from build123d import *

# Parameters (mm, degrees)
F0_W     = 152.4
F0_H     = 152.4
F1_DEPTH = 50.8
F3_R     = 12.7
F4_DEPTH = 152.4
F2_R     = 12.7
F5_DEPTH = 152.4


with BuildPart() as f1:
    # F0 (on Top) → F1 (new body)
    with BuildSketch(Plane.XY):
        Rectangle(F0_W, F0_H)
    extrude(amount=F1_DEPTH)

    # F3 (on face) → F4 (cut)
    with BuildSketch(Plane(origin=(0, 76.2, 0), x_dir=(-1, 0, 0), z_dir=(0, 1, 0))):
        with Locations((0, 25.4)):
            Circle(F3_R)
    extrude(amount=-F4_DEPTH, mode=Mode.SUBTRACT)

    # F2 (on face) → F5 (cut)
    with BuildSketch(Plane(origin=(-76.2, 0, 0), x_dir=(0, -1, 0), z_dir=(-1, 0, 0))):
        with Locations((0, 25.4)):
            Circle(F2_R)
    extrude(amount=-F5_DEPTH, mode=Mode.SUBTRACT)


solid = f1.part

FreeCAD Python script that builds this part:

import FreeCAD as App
import Part
import Sketcher

V = App.Vector
Q = App.Units.Quantity


def add_polygon(sketch, points):
    """Adds a closed chain of lines whose ends are joined by coincident constraints."""
    first, n = sketch.GeometryCount, len(points)
    for a, b in zip(points, points[1:] + points[:1]):
        sketch.addGeometry(Part.LineSegment(App.Vector(*a, 0), App.Vector(*b, 0)), False)
    for i in range(n):
        sketch.addConstraint(Sketcher.Constraint("Coincident", first + i, 2, first + (i + 1) % n, 1))

doc = App.newDocument("Part")
body = doc.addObject("PartDesign::Body", "Body")

# Sketch on XY plane
sketch1 = doc.addObject("Sketcher::SketchObject", "Sketch")
body.addObject(sketch1)
sketch1.AttachmentSupport = (doc.XY_Plane, [""])
sketch1.MapMode = "FlatFace"
add_polygon(sketch1, [(-76, 76), (-76, -76), (76, -76), (76, 76)])  # lines 0-3
sketch1.addConstraint([
    Sketcher.Constraint("Vertical", 0),
    Sketcher.Constraint("Horizontal", 1),
    Sketcher.Constraint("Vertical", 2),
    Sketcher.Constraint("Horizontal", 3),
    Sketcher.Constraint("Symmetric", 0, 2, 2, 2, -1, 1),
    Sketcher.Constraint("Equal", 3, 0),
    Sketcher.Constraint("DistanceX", 1, 1, 1, 2, Q("6 in")),
])
pad1 = doc.addObject("PartDesign::Pad", "Pad")
body.addObject(pad1)
pad1.Profile = sketch1
pad1.Length = Q("2 in")

# Sketch on XZ plane
sketch2 = doc.addObject("Sketcher::SketchObject", "Sketch001")
body.addObject(sketch2)
sketch2.AttachmentSupport = (doc.XZ_Plane, [""])
sketch2.MapMode = "FlatFace"
sketch2.AttachmentOffset = App.Placement(V(0, 0, -3 * 25.4), App.Rotation())
sketch2.addGeometry(Part.Circle(V(0, 25, 0), V(0, 0, 1), 13), False)
sketch2.addConstraint([
    Sketcher.Constraint("PointOnObject", 0, 3, -2),
    Sketcher.Constraint("Diameter", 0, Q("1 in")),
    Sketcher.Constraint("DistanceY", -1, 1, 0, 3, Q("1 in")),
])
pocket1 = doc.addObject("PartDesign::Pocket", "Pocket")
body.addObject(pocket1)
pocket1.Profile = sketch2
pocket1.Length = Q("6 in")
pocket1.Reversed = True

# Sketch on YZ plane
sketch3 = doc.addObject("Sketcher::SketchObject", "Sketch002")
body.addObject(sketch3)
sketch3.AttachmentSupport = (doc.YZ_Plane, [""])
sketch3.MapMode = "FlatFace"
sketch3.AttachmentOffset = App.Placement(V(0, 0, -3 * 25.4), App.Rotation())
sketch3.addGeometry(Part.Circle(V(0, 25, 0), V(0, 0, 1), 13), False)
sketch3.addConstraint([
    Sketcher.Constraint("PointOnObject", 0, 3, -2),
    Sketcher.Constraint("Diameter", 0, Q("1 in")),
    Sketcher.Constraint("DistanceY", -1, 1, 0, 3, Q("1 in")),
])
pocket2 = doc.addObject("PartDesign::Pocket", "Pocket001")
body.addObject(pocket2)
pocket2.Profile = sketch3
pocket2.Length = Q("6 in")
pocket2.Reversed = True

doc.recompute()
